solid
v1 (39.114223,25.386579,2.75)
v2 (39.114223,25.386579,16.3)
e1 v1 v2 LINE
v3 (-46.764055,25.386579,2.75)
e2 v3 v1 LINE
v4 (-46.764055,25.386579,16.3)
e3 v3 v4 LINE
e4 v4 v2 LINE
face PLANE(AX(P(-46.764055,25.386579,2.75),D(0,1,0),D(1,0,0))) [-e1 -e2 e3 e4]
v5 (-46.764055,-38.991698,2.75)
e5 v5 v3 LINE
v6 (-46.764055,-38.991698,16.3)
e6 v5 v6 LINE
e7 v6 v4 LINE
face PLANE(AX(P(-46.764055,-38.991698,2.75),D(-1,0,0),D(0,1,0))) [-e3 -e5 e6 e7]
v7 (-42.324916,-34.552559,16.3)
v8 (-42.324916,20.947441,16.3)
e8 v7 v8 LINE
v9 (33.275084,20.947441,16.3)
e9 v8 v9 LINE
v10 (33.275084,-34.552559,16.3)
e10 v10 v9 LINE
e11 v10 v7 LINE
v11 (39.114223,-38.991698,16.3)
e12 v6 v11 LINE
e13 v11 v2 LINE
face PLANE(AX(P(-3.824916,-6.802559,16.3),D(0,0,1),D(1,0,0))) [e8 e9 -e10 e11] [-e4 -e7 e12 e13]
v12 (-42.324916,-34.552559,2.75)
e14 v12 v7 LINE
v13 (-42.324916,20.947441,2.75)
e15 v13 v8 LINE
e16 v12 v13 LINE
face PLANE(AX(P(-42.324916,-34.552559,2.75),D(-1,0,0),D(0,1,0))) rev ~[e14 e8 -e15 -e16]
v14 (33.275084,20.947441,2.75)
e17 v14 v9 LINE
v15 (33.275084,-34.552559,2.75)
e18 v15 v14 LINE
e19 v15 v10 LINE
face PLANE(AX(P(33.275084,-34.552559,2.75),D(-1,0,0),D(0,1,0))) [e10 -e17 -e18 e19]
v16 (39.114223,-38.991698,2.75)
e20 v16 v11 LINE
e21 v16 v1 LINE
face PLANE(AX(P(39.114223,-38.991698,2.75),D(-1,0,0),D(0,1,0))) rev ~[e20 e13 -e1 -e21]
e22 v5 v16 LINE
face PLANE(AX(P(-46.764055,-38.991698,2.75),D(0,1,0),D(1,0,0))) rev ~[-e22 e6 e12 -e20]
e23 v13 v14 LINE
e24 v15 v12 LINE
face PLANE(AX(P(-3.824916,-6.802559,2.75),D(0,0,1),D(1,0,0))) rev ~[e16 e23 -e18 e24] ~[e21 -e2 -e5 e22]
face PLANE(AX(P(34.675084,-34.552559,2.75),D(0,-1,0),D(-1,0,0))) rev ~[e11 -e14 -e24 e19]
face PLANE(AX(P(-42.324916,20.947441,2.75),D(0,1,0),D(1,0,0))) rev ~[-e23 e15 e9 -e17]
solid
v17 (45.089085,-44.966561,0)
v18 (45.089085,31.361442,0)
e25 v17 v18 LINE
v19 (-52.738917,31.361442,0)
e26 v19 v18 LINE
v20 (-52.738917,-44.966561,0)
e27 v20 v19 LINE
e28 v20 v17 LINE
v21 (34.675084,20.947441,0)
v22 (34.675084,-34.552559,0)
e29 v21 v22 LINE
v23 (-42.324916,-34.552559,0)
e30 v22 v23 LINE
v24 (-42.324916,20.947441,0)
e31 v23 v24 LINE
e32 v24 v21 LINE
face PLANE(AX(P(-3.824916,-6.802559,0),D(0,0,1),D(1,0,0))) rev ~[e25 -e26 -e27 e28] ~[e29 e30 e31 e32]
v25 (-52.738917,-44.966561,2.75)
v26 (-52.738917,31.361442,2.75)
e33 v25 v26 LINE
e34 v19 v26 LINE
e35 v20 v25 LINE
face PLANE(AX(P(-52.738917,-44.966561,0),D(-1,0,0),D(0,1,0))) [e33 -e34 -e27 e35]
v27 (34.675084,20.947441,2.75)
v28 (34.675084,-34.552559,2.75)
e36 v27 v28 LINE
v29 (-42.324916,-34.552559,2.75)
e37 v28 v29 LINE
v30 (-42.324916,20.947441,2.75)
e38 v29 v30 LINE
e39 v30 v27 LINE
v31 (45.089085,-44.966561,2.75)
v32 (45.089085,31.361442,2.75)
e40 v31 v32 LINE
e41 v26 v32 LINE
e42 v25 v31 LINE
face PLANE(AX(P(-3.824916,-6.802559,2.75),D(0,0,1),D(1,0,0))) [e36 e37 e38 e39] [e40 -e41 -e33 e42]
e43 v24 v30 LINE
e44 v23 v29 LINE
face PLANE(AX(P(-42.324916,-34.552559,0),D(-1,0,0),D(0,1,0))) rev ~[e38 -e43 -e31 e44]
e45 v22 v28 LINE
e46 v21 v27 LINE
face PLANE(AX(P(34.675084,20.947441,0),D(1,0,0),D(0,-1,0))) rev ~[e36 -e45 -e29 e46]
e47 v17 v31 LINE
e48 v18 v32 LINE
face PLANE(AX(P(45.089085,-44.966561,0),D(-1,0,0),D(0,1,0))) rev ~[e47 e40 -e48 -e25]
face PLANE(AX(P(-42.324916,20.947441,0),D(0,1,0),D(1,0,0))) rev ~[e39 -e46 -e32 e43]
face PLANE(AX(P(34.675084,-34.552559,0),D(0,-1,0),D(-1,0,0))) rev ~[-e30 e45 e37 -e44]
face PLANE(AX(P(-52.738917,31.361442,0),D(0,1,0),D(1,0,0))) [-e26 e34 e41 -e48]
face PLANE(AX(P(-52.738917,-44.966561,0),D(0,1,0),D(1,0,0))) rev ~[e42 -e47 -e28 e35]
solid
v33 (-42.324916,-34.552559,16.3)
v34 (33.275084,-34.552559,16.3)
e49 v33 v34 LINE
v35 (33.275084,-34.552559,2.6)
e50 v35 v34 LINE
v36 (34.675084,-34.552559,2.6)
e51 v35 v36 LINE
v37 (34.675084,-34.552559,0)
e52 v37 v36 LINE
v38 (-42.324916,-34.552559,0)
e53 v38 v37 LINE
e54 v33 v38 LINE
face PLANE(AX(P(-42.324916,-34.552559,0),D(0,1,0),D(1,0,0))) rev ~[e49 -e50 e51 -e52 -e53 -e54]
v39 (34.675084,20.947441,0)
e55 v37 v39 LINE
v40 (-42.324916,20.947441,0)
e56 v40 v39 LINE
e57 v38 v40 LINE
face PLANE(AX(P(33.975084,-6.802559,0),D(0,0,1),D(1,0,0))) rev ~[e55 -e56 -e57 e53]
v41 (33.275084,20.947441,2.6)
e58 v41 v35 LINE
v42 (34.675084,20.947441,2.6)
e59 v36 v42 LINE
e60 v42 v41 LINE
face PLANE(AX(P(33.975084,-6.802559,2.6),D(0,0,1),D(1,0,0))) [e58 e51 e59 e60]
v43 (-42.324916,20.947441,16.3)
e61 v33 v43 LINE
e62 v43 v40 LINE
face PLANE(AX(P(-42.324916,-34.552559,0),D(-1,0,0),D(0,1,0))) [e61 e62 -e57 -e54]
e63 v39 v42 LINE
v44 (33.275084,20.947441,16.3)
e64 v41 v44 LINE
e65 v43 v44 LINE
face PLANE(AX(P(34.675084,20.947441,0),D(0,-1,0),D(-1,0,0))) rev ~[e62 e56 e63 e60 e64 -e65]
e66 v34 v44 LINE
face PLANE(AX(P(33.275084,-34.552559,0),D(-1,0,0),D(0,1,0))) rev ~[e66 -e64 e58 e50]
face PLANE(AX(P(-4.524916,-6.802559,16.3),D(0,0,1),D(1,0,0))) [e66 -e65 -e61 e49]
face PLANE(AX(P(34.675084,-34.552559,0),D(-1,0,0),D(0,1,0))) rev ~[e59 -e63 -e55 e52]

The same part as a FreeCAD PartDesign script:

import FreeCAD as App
import Part
import Sketcher
Q = App.Units.Quantity

doc = App.newDocument("Part")
body = doc.addObject("PartDesign::Body", "Body")

# Sketch on XY plane
sketch1 = body.newObject("Sketcher::SketchObject", "Sketch")
sketch1.AttachmentSupport = (doc.getObject("XY_Plane"), [""])
sketch1.MapMode = "FlatFace"
sketch1.addGeometry([
    Part.LineSegment(App.Vector(35, -35, 0), App.Vector(35, 21, 0)),
    Part.LineSegment(App.Vector(35, 21, 0), App.Vector(-42, 21, 0)),
    Part.LineSegment(App.Vector(-42, 21, 0), App.Vector(-42, -35, 0)),
    Part.LineSegment(App.Vector(-42, -35, 0), App.Vector(35, -35, 0)),
], False)
sketch1.addConstraint([
    Sketcher.Constraint("Coincident", 0, 2, 1, 1),
    Sketcher.Constraint("Coincident", 1, 2, 2, 1),
    Sketcher.Constraint("Coincident", 2, 2, 3, 1),
    Sketcher.Constraint("Coincident", 3, 2, 0, 1),
    Sketcher.Constraint("Vertical", 0),
    Sketcher.Constraint("Horizontal", 1),
    Sketcher.Constraint("Vertical", 2),
    Sketcher.Constraint("Horizontal", 3),
    Sketcher.Constraint("DistanceX", 1, 2, 1, 1, Q("77 mm")),
    Sketcher.Constraint("DistanceY", 0, 1, 0, 2, Q("55.5 mm")),
    Sketcher.Constraint("DistanceY", -1, 1, 0, 2, Q("20.947441 mm")),
    Sketcher.Constraint("DistanceX", -1, 1, 0, 2, Q("34.675084 mm")),
])
pad1 = body.newObject("PartDesign::Pad", "Pad")
pad1.Profile = sketch1
pad1.Length = 2.6

# Sketch on XY plane
sketch2 = body.newObject("Sketcher::SketchObject", "Sketch001")
sketch2.AttachmentSupport = (doc.getObject("XY_Plane"), [""])
sketch2.MapMode = "FlatFace"
sketch2.addGeometry([
    Part.LineSegment(App.Vector(-42, 21, 0), App.Vector(-42, -35, 0)),
    Part.LineSegment(App.Vector(-42, -35, 0), App.Vector(33, -35, 0)),
    Part.LineSegment(App.Vector(33, -35, 0), App.Vector(33, 21, 0)),
    Part.LineSegment(App.Vector(33, 21, 0), App.Vector(-42, 21, 0)),
], False)
sketch2.addConstraint([
    Sketcher.Constraint("Coincident", 0, 2, 1, 1),
    Sketcher.Constraint("Coincident", 1, 2, 2, 1),
    Sketcher.Constraint("Coincident", 2, 2, 3, 1),
    Sketcher.Constraint("Coincident", 3, 2, 0, 1),
    Sketcher.Constraint("Vertical", 0),
    Sketcher.Constraint("Horizontal", 1),
    Sketcher.Constraint("Vertical", 2),
    Sketcher.Constraint("Horizontal", 3),
    Sketcher.Constraint("DistanceX", 1, 1, 1, 2, Q("75.6 mm")),
    Sketcher.Constraint("DistanceY", 0, 2, 0, 1, Q("55.5 mm")),
    Sketcher.Constraint("DistanceY", 0, 2, -1, 1, Q("34.552559 mm")),
    Sketcher.Constraint("DistanceX", 0, 2, -1, 1, Q("42.324916 mm")),
])
pad2 = body.newObject("PartDesign::Pad", "Pad001")
pad2.Profile = sketch2
pad2.Length = 16.3
body2 = doc.addObject("PartDesign::Body", "Body001")

# Sketch on XY plane
sketch3 = body2.newObject("Sketcher::SketchObject", "Sketch002")
sketch3.AttachmentSupport = (doc.getObject("XY_Plane001"), [""])
sketch3.MapMode = "FlatFace"
sketch3.addGeometry([
    Part.LineSegment(App.Vector(-53, 31, 0), App.Vector(-53, -45, 0)),  # 0
    Part.LineSegment(App.Vector(-53, -45, 0), App.Vector(45, -45, 0)),  # 1
    Part.LineSegment(App.Vector(45, -45, 0), App.Vector(45, 31, 0)),  # 2
    Part.LineSegment(App.Vector(45, 31, 0), App.Vector(-53, 31, 0)),  # 3
    Part.LineSegment(App.Vector(35, -35, 0), App.Vector(-42, -35, 0)),  # 4
    Part.LineSegment(App.Vector(-42, -35, 0), App.Vector(-42, 21, 0)),  # 5
    Part.LineSegment(App.Vector(-42, 21, 0), App.Vector(35, 21, 0)),  # 6
    Part.LineSegment(App.Vector(35, 21, 0), App.Vector(35, -35, 0)),  # 7
], False)
sketch3.addConstraint([
    Sketcher.Constraint("Coincident", 0, 2, 1, 1),
    Sketcher.Constraint("Coincident", 1, 2, 2, 1),
    Sketcher.Constraint("Coincident", 2, 2, 3, 1),
    Sketcher.Constraint("Coincident", 3, 2, 0, 1),
    Sketcher.Constraint("Coincident", 4, 2, 5, 1),
    Sketcher.Constraint("Coincident", 5, 2, 6, 1),
    Sketcher.Constraint("Coincident", 6, 2, 7, 1),
    Sketcher.Constraint("Coincident", 7, 2, 4, 1),
    Sketcher.Constraint("Vertical", 0),
    Sketcher.Constraint("Horizontal", 1),
    Sketcher.Constraint("Vertical", 2),
    Sketcher.Constraint("Horizontal", 3),
    Sketcher.Constraint("Horizontal", 4),
    Sketcher.Constraint("Vertical", 5),
    Sketcher.Constraint("Horizontal", 6),
    Sketcher.Constraint("Vertical", 7),
    Sketcher.Constraint("DistanceX", 4, 2, 4, 1, Q("77 mm")),
    Sketcher.Constraint("DistanceY", 5, 1, 5, 2, Q("55.5 mm")),
    Sketcher.Constraint("DistanceX", 0, 2, 4, 2, Q("10.414001 mm")),
    Sketcher.Constraint("DistanceY", 0, 2, 4, 2, Q("10.414001 mm")),
    Sketcher.Constraint("DistanceY", 4, 2, 3, 2, Q("65.914001 mm")),
    Sketcher.Constraint("DistanceX", 4, 2, 1, 2, Q("87.414001 mm")),
    Sketcher.Constraint("DistanceY", 0, 2, -1, 1, Q("44.966561 mm")),
    Sketcher.Constraint("DistanceX", 0, 2, -1, 1, Q("52.738917 mm")),
])
pad3 = body2.newObject("PartDesign::Pad", "Pad002")
pad3.Profile = sketch3
pad3.Length = 2.75
body3 = doc.addObject("PartDesign::Body", "Body002")

# Sketch on XY plane
sketch4 = body3.newObject("Sketcher::SketchObject", "Sketch003")
sketch4.AttachmentSupport = (doc.getObject("XY_Plane002"), [""])
sketch4.MapMode = "FlatFace"
sketch4.AttachmentOffset = App.Placement(App.Vector(0, 0, 2.75), App.Rotation())
sketch4.addGeometry([
    Part.LineSegment(App.Vector(33.3, 20.9, 0), App.Vector(33.3, -34.6, 0)),
    Part.LineSegment(App.Vector(33.3, -34.6, 0), App.Vector(34.7, -34.6, 0)),
    Part.LineSegment(App.Vector(34.7, -34.6, 0), App.Vector(34.7, 20.9, 0)),
    Part.LineSegment(App.Vector(34.7, 20.9, 0), App.Vector(33.3, 20.9, 0)),
], False)
sketch4.addConstraint([
    Sketcher.Constraint("Coincident", 0, 2, 1, 1),
    Sketcher.Constraint("Coincident", 1, 2, 2, 1),
    Sketcher.Constraint("Coincident", 2, 2, 3, 1),
    Sketcher.Constraint("Coincident", 3, 2, 0, 1),
    Sketcher.Constraint("Vertical", 0),
    Sketcher.Constraint("Horizontal", 1),
    Sketcher.Constraint("Vertical", 2),
    Sketcher.Constraint("Horizontal", 3),
    Sketcher.Constraint("DistanceX", 1, 1, 1, 2, Q("1.4 mm")),
    Sketcher.Constraint("DistanceY", 0, 2, 0, 1, Q("55.5 mm")),
    Sketcher.Constraint("DistanceY", 0, 2, -1, 1, Q("34.552559 mm")),
    Sketcher.Constraint("DistanceX", -1, 1, 0, 2, Q("33.275084 mm")),
])
pad4 = body3.newObject("PartDesign::Pad", "Pad003")
pad4.Profile = sketch4
pad4.Length = 13.55

# Sketch on XY plane
sketch5 = body3.newObject("Sketcher::SketchObject", "Sketch004")
sketch5.AttachmentSupport = (doc.getObject("XY_Plane002"), [""])
sketch5.MapMode = "FlatFace"
sketch5.AttachmentOffset = App.Placement(App.Vector(0, 0, 2.75), App.Rotation())
sketch5.addGeometry([
    Part.LineSegment(App.Vector(-47, 25, 0), App.Vector(-47, -39, 0)),  # 0
    Part.LineSegment(App.Vector(-47, -39, 0), App.Vector(39, -39, 0)),  # 1
    Part.LineSegment(App.Vector(39, -39, 0), App.Vector(39, 25, 0)),  # 2
    Part.LineSegment(App.Vector(39, 25, 0), App.Vector(-47, 25, 0)),  # 3
    Part.LineSegment(App.Vector(35, -35, 0), App.Vector(-42, -35, 0)),  # 4
    Part.LineSegment(App.Vector(-42, -35, 0), App.Vector(-42, 21, 0)),  # 5
    Part.LineSegment(App.Vector(-42, 21, 0), App.Vector(35, 21, 0)),  # 6
    Part.LineSegment(App.Vector(35, 21, 0), App.Vector(35, -35, 0)),  # 7
], False)
sketch5.addConstraint([
    Sketcher.Constraint("Coincident", 0, 2, 1, 1),
    Sketcher.Constraint("Coincident", 1, 2, 2, 1),
    Sketcher.Constraint("Coincident", 2, 2, 3, 1),
    Sketcher.Constraint("Coincident", 3, 2, 0, 1),
    Sketcher.Constraint("Coincident", 4, 2, 5, 1),
    Sketcher.Constraint("Coincident", 5, 2, 6, 1),
    Sketcher.Constraint("Coincident", 6, 2, 7, 1),
    Sketcher.Constraint("Coincident", 7, 2, 4, 1),
    Sketcher.Constraint("Vertical", 0),
    Sketcher.Constraint("Horizontal", 1),
    Sketcher.Constraint("Vertical", 2),
    Sketcher.Constraint("Horizontal", 3),
    Sketcher.Constraint("Horizontal", 4),
    Sketcher.Constraint("Vertical", 5),
    Sketcher.Constraint("Horizontal", 6),
    Sketcher.Constraint("Vertical", 7),
    Sketcher.Constraint("DistanceX", 4, 2, 4, 1, Q("77 mm")),
    Sketcher.Constraint("DistanceY", 5, 1, 5, 2, Q("55.5 mm")),
    Sketcher.Constraint("DistanceX", 1, 1, 1, 2, Q("85.878277 mm")),
    Sketcher.Constraint("DistanceY", 0, 2, 0, 1, Q("64.378277 mm")),
    Sketcher.Constraint("DistanceY", -1, 1, 2, 2, Q("25.386579 mm")),
    Sketcher.Constraint("DistanceY", 4, 2, -1, 1, Q("34.552559 mm")),
    Sketcher.Constraint("DistanceX", 0, 2, 4, 2, Q("4.439139 mm")),
    Sketcher.Constraint("DistanceX", 0, 2, -1, 1, Q("46.764055 mm")),
])
pad5 = body3.newObject("PartDesign::Pad", "Pad004")
pad5.Profile = sketch5
pad5.Length = 13.55

doc.recompute()
